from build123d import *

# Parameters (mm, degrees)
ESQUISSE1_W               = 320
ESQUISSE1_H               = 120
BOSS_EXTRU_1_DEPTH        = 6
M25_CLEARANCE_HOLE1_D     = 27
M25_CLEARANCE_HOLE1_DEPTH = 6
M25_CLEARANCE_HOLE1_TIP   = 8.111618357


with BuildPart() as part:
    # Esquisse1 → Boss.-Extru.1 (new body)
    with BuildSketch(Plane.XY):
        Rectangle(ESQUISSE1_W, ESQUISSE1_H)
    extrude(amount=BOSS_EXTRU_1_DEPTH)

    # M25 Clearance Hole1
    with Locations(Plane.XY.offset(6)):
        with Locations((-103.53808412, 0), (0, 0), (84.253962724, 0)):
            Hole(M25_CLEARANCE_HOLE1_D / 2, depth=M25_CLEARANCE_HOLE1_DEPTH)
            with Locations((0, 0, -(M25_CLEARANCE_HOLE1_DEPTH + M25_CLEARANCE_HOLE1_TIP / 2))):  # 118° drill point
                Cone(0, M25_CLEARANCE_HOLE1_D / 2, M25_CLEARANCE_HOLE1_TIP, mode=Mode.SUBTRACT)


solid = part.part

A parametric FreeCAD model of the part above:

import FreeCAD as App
import Part
import Sketcher
from FreeCAD import Vector
Q = App.Units.Quantity

doc = App.newDocument("Part")
body = doc.addObject("PartDesign::Body", "Body")

# Sketch on XY plane
sketch1 = body.newObject("Sketcher::SketchObject", "Sketch")
sketch1.AttachmentSupport = (doc.getObject("XY_Plane"), [""])
sketch1.MapMode = "FlatFace"
sketch1.addGeometry([
    Part.LineSegment(Vector(-160, 60, 0), Vector(-160, -60, 0)),
    Part.LineSegment(Vector(-160, -60, 0), Vector(160, -60, 0)),
    Part.LineSegment(Vector(160, -60, 0), Vector(160, 60, 0)),
    Part.LineSegment(Vector(160, 60, 0), Vector(-160, 60, 0)),
], False)
sketch1.addConstraint([
    Sketcher.Constraint("Coincident", 0, 2, 1, 1),
    Sketcher.Constraint("Coincident", 1, 2, 2, 1),
    Sketcher.Constraint("Coincident", 2, 2, 3, 1),
    Sketcher.Constraint("Coincident", 3, 2, 0, 1),
    Sketcher.Constraint("Vertical", 0),
    Sketcher.Constraint("Horizontal", 1),
    Sketcher.Constraint("Vertical", 2),
    Sketcher.Constraint("Horizontal", 3),
    Sketcher.Constraint("Symmetric", 0, 2, 2, 2, -1, 1),
    Sketcher.Constraint("DistanceX", 1, 1, 1, 2, Q("320 mm")),
    Sketcher.Constraint("DistanceY", 0, 2, 0, 1, Q("120 mm")),
])
pad1 = body.newObject("PartDesign::Pad", "Pad")
pad1.Profile = sketch1
pad1.Length = 6

# Sketch on XY plane
sketch2 = body.newObject("Sketcher::SketchObject", "Sketch001")
sketch2.AttachmentSupport = (doc.getObject("XY_Plane"), [""])
sketch2.MapMode = "FlatFace"
sketch2.AttachmentOffset = App.Placement(Vector(0, 0, 6), App.Rotation())
sketch2.addGeometry([
    Part.Circle(Vector(-103.538084, 0, 0), Vector(0, 0, 1), 13.5),
    Part.Circle(Vector(0, 0, 0), Vector(0, 0, 1), 13.5),
    Part.Circle(Vector(84.253963, 0, 0), Vector(0, 0, 1), 13.5),
], False)
sketch2.addConstraint([
    Sketcher.Constraint("Coincident", 1, 3, -1, 1),
    Sketcher.Constraint("Equal", 0, 1),
    Sketcher.Constraint("Equal", 1, 2),
    Sketcher.Constraint("PointOnObject", 0, 3, -1),
    Sketcher.Constraint("PointOnObject", 2, 3, -1),
    Sketcher.Constraint("Diameter", 0, Q("27 mm")),
    Sketcher.Constraint("DistanceX", 0, 3, -1, 1, Q("103.538084 mm")),
    Sketcher.Constraint("DistanceX", -1, 1, 2, 3, Q("84.253963 mm")),
])
doc.recompute()
hole = body.newObject("PartDesign::Hole", "Hole")
hole.Profile = sketch2
hole.ThreadType = "None"
hole.Diameter = 27
hole.DepthType = "Dimension"
hole.Depth = 6
hole.DrillPoint = "Angled"
hole.DrillPointAngle = 118

doc.recompute()
